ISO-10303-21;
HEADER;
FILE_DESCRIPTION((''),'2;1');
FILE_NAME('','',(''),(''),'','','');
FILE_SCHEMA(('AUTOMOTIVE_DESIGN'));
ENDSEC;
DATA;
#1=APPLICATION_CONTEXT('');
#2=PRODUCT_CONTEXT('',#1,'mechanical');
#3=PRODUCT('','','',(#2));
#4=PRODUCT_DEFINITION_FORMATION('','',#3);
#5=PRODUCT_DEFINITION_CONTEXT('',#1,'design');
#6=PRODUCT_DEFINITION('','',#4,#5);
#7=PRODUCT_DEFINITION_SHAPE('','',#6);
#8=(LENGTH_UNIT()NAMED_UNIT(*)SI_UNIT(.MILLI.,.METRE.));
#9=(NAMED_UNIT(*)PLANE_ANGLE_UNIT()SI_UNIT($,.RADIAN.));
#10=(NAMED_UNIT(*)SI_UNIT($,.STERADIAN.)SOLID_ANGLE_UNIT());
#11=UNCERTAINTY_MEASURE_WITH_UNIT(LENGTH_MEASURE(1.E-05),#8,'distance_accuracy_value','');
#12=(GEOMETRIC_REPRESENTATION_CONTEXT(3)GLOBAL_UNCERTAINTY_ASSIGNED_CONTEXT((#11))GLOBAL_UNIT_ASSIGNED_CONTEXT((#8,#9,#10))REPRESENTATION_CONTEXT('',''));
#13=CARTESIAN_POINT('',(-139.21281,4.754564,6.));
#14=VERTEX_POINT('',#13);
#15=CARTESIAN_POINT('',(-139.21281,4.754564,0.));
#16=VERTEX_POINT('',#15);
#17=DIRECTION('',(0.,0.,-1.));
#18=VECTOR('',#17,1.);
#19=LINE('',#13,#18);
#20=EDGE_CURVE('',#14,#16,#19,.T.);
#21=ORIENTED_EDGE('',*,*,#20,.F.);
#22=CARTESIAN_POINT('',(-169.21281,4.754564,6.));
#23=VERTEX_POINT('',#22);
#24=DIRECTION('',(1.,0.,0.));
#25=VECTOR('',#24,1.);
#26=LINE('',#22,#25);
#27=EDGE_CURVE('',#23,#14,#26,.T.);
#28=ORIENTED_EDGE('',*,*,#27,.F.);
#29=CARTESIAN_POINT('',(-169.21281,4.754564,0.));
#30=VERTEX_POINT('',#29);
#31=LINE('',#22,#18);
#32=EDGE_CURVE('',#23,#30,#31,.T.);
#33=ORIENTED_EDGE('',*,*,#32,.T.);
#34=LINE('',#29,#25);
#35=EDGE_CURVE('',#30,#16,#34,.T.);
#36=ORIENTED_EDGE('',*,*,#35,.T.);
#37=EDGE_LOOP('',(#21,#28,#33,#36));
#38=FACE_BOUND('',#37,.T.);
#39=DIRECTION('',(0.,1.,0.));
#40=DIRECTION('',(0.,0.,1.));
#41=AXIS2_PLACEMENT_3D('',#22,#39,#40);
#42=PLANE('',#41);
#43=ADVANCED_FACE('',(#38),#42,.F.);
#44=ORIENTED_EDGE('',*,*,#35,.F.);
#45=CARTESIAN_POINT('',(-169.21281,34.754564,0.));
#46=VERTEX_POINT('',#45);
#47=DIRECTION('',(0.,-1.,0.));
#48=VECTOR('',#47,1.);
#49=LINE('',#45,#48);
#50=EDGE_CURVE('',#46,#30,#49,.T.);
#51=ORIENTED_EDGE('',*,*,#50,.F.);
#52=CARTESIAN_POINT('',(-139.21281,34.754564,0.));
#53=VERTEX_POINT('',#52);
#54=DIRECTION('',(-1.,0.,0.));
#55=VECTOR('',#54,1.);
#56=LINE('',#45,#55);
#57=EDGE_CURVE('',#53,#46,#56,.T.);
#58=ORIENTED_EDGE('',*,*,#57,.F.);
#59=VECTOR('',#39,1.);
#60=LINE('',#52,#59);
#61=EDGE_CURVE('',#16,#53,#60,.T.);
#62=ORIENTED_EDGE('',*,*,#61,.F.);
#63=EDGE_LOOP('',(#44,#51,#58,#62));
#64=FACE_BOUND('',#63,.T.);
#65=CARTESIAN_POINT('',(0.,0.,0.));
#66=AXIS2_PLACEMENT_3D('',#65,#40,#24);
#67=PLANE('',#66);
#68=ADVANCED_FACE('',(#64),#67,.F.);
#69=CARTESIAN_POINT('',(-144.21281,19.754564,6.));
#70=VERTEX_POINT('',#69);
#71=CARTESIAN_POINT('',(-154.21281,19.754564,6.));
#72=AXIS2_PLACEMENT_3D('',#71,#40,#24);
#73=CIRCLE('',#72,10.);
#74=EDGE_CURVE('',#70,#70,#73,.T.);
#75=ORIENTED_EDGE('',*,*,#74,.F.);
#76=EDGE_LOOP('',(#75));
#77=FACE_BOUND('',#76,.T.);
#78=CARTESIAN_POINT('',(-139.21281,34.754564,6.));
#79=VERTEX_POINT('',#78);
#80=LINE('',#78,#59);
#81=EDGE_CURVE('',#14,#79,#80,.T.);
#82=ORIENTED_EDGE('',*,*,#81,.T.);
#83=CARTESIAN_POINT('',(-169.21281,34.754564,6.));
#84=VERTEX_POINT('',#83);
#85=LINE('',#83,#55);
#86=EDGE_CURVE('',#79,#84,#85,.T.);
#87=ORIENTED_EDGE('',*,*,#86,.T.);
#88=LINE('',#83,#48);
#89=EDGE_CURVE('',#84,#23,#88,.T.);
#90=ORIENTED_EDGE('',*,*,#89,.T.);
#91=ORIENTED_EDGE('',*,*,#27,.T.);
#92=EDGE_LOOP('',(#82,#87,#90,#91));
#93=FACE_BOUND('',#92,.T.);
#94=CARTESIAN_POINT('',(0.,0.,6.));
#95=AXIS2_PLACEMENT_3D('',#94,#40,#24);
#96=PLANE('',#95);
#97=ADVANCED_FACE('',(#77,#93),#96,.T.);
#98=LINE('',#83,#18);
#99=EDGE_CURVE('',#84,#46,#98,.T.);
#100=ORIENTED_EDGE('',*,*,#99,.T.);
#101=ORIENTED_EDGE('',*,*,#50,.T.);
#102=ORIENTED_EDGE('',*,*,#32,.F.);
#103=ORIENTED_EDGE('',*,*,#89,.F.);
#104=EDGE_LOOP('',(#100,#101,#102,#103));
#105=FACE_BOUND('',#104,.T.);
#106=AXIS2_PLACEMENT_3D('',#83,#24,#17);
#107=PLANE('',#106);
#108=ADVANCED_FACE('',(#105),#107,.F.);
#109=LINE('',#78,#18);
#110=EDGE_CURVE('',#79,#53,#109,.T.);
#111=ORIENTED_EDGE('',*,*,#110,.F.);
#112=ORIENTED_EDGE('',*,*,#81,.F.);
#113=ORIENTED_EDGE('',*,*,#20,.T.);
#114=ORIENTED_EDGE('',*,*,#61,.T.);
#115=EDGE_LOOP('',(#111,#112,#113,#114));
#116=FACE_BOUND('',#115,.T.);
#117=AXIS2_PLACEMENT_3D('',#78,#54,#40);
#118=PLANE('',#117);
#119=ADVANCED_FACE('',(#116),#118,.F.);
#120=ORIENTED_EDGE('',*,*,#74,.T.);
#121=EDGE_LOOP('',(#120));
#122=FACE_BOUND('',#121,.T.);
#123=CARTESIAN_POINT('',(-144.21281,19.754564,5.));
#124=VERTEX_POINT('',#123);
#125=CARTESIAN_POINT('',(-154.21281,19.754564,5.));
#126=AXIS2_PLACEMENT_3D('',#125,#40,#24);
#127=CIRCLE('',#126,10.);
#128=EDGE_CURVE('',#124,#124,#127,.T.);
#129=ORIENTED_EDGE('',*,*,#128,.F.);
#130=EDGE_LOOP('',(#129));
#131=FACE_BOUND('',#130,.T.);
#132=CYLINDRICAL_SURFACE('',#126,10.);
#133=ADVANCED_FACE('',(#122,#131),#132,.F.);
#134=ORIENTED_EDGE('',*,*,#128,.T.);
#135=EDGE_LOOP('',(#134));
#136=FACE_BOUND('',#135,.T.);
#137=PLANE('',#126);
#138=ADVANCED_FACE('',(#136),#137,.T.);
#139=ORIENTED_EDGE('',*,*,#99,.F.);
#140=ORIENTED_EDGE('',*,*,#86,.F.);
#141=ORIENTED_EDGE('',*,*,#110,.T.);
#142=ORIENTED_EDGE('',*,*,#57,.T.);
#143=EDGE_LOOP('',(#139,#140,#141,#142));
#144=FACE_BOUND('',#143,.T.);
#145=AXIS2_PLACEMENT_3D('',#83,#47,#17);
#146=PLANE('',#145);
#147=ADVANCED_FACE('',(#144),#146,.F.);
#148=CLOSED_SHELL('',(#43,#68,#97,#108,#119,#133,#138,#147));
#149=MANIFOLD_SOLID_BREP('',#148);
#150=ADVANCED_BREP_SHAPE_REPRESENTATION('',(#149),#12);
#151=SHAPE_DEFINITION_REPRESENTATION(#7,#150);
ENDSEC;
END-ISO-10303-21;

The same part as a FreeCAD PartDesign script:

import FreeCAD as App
import Part
import Sketcher

V = App.Vector
Q = App.Units.Quantity

doc = App.newDocument("Part")
body = doc.addObject("PartDesign::Body", "Body")

sketch1 = body.newObject("Sketcher::SketchObject", "Sketch")
sketch1.AttachmentSupport = (doc.getObject("XY_Plane"), [""])
sketch1.MapMode = "FlatFace"
sketch1.addGeometry(Part.LineSegment(V(-169, 35, 0), V(-169, 5, 0)), False)
sketch1.addGeometry(Part.LineSegment(V(-169, 5, 0), V(-139, 5, 0)), False)
sketch1.addGeometry(Part.LineSegment(V(-139, 5, 0), V(-139, 35, 0)), False)
sketch1.addGeometry(Part.LineSegment(V(-139, 35, 0), V(-169, 35, 0)), False)
sketch1.addConstraint(Sketcher.Constraint("Coincident", 0, 2, 1, 1))
sketch1.addConstraint(Sketcher.Constraint("Coincident", 1, 2, 2, 1))
sketch1.addConstraint(Sketcher.Constraint("Coincident", 2, 2, 3, 1))
sketch1.addConstraint(Sketcher.Constraint("Coincident", 3, 2, 0, 1))
sketch1.addConstraint(Sketcher.Constraint("Vertical", 0))
sketch1.addConstraint(Sketcher.Constraint("Horizontal", 1))
sketch1.addConstraint(Sketcher.Constraint("Vertical", 2))
sketch1.addConstraint(Sketcher.Constraint("Horizontal", 3))
sketch1.addConstraint(Sketcher.Constraint("Equal", 3, 0))
sketch1.addConstraint(Sketcher.Constraint("DistanceX", 1, 1, 1, 2, Q("30 mm")))
sketch1.addConstraint(Sketcher.Constraint("DistanceX", 0, 2, -1, 1, Q("169.21281 mm")))
sketch1.addConstraint(Sketcher.Constraint("DistanceY", -1, 1, 0, 2, Q("4.754564 mm")))
pad1 = body.newObject("PartDesign::Pad", "Pad")
pad1.Profile = sketch1
pad1.Length = 6

sketch2 = body.newObject("Sketcher::SketchObject", "Sketch001")
sketch2.AttachmentSupport = (doc.getObject("XY_Plane"), [""])
sketch2.MapMode = "FlatFace"
sketch2.AttachmentOffset = App.Placement(V(0, 0, 6), App.Rotation())
sketch2.addGeometry(Part.Circle(V(-154, 20, 0), V(0, 0, 1), 10), False)
sketch2.addConstraint(Sketcher.Constraint("Diameter", 0, Q("20 mm")))
sketch2.addConstraint(Sketcher.Constraint("DistanceX", 0, 3, -1, 1, Q("154.21281 mm")))
sketch2.addConstraint(Sketcher.Constraint("DistanceY", -1, 1, 0, 3, Q("19.754564 mm")))
pocket1 = body.newObject("PartDesign::Pocket", "Pocket")
pocket1.Profile = sketch2
pocket1.Length = 1

doc.recompute()
